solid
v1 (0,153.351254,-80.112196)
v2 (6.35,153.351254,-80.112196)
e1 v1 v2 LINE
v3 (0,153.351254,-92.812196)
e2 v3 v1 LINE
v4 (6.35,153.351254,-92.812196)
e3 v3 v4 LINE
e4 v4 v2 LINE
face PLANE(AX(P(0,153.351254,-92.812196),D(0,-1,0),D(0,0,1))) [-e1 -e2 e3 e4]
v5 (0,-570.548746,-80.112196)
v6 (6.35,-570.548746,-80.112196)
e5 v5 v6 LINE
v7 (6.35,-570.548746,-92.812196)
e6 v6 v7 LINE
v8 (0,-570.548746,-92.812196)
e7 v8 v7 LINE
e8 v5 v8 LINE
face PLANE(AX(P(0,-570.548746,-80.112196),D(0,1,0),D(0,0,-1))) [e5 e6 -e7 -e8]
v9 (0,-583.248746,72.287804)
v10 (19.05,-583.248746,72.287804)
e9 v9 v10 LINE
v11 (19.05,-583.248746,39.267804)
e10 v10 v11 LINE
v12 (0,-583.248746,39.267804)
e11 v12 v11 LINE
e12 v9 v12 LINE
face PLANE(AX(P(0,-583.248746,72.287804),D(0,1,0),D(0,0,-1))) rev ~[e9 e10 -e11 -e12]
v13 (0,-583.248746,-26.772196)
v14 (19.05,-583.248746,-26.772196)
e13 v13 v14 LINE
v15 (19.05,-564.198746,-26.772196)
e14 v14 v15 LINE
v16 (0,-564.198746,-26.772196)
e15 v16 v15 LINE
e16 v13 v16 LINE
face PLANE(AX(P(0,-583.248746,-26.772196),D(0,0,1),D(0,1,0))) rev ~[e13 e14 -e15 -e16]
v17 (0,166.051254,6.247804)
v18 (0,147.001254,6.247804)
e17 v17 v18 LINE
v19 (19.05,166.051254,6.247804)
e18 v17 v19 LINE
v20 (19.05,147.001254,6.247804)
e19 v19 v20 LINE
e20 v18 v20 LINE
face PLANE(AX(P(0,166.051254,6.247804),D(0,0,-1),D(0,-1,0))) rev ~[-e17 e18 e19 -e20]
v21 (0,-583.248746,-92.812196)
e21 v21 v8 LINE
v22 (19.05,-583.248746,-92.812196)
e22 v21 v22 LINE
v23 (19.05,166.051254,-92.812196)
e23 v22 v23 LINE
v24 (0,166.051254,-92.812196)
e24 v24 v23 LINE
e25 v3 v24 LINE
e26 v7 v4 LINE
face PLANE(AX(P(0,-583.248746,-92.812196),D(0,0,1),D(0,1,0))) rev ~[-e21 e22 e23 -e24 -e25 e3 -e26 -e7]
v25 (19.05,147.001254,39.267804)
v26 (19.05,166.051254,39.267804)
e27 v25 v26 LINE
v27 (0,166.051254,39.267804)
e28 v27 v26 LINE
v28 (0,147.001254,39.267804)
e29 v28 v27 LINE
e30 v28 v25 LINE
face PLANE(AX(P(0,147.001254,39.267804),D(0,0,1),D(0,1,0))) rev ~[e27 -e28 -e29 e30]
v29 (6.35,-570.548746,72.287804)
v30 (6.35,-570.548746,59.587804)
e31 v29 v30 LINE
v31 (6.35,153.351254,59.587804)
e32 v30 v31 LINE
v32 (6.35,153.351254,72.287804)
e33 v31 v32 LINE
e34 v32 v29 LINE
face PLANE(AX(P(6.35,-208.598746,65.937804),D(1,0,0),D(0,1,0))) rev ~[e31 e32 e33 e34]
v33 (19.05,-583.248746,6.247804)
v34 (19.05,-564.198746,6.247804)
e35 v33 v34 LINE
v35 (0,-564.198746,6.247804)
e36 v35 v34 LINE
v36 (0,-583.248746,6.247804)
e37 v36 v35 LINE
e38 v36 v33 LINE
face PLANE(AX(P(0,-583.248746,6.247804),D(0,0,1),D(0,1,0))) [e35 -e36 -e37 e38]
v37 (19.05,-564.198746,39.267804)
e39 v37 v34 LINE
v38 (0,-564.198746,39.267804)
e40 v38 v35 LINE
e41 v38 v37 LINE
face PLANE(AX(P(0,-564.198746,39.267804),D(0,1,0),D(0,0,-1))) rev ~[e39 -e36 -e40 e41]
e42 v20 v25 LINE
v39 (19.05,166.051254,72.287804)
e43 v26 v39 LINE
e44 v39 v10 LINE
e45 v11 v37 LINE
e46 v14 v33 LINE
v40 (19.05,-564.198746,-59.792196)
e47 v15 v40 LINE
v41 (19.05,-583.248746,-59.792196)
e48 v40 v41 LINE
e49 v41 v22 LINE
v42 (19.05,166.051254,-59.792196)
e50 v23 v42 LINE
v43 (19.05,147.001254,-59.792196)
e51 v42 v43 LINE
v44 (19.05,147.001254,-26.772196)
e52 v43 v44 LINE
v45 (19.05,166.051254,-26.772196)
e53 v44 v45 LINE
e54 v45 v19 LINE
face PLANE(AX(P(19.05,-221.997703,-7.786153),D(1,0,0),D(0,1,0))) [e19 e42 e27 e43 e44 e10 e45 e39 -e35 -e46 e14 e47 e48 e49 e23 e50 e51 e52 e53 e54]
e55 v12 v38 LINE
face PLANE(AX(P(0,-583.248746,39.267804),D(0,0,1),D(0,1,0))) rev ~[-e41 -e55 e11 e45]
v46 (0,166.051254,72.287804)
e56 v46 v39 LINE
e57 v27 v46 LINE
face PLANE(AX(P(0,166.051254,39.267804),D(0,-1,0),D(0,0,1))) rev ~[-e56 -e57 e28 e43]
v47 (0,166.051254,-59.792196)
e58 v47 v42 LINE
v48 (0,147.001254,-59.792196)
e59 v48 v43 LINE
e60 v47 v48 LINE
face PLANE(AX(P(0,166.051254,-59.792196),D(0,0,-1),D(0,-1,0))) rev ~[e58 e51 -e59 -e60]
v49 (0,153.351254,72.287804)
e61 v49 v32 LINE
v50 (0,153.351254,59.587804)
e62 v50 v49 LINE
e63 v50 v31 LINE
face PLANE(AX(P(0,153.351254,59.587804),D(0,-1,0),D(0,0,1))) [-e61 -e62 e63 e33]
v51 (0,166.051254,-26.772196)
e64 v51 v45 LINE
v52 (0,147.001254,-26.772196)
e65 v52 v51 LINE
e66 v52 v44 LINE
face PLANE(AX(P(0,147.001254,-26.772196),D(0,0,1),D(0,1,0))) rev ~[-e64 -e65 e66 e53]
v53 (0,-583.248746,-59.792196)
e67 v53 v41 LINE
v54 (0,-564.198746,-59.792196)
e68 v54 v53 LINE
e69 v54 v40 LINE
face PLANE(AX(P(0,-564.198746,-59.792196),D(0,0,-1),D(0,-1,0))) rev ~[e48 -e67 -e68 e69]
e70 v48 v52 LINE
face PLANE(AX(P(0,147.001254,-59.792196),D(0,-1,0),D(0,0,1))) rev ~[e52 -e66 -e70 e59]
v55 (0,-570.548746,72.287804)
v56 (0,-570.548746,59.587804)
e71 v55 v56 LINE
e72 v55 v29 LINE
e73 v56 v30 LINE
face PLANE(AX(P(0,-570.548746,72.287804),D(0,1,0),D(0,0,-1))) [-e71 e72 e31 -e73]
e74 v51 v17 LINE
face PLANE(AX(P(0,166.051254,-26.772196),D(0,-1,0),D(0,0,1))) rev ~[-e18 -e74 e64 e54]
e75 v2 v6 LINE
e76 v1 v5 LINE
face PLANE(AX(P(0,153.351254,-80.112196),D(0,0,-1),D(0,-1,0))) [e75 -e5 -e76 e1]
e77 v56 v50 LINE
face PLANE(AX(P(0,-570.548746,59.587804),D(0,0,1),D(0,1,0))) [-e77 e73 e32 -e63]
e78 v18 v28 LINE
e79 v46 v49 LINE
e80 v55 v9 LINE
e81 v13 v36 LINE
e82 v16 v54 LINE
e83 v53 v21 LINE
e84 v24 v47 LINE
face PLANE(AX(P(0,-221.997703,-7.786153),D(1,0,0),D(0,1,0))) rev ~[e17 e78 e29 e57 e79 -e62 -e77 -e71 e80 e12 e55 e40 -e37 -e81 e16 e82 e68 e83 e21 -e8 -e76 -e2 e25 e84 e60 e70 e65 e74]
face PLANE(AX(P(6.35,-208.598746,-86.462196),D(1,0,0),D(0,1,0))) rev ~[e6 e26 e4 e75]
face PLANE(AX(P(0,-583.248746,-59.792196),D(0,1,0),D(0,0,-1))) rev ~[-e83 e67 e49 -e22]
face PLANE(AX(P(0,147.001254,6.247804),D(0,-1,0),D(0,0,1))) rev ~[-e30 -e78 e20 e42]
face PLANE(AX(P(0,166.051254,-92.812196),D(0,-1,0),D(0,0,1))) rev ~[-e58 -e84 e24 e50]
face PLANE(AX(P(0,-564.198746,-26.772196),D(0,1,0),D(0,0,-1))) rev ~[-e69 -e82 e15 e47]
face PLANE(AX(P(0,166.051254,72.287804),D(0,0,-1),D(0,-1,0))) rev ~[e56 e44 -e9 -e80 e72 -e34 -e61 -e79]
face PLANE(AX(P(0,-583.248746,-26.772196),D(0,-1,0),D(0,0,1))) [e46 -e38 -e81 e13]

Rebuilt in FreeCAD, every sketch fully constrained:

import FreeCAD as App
import Part
import Sketcher
Q = App.Units.Quantity


def add_polygon(sketch, points):
    """Adds a closed chain of lines whose ends are joined by coincident constraints."""
    first, n = sketch.GeometryCount, len(points)
    for a, b in zip(points, points[1:] + points[:1]):
        sketch.addGeometry(Part.LineSegment(App.Vector(*a, 0), App.Vector(*b, 0)), False)
    for i in range(n):
        sketch.addConstraint(Sketcher.Constraint("Coincident", first + i, 2, first + (i + 1) % n, 1))

doc = App.newDocument("Part")
body = doc.addObject("PartDesign::Body", "Body")

# Sketch on YZ plane
sketch1 = body.newObject("Sketcher::SketchObject", "Sketch")
sketch1.AttachmentSupport = (doc.getObject("YZ_Plane"), [""])
sketch1.MapMode = "FlatFace"
add_polygon(sketch1, [(-583, 72), (-583, 39), (-564, 39), (-564, 6), (-583, 6), (-583, -27), (-564, -27), (-564, -60), (-583, -60), (-583, -93), (166, -93), (166, -60), (147, -60), (147, -27), (166, -27), (166, 6), (147, 6), (147, 39), (166, 39), (166, 72)])  # lines 0-19
sketch1.addConstraint(Sketcher.Constraint("Vertical", 0))
sketch1.addConstraint(Sketcher.Constraint("Horizontal", 1))
sketch1.addConstraint(Sketcher.Constraint("Vertical", 2))
sketch1.addConstraint(Sketcher.Constraint("Horizontal", 3))
sketch1.addConstraint(Sketcher.Constraint("Vertical", 4))
sketch1.addConstraint(Sketcher.Constraint("Horizontal", 5))
sketch1.addConstraint(Sketcher.Constraint("Vertical", 6))
sketch1.addConstraint(Sketcher.Constraint("Horizontal", 7))
sketch1.addConstraint(Sketcher.Constraint("Vertical", 8))
sketch1.addConstraint(Sketcher.Constraint("Horizontal", 9))
sketch1.addConstraint(Sketcher.Constraint("Vertical", 10))
sketch1.addConstraint(Sketcher.Constraint("Horizontal", 11))
sketch1.addConstraint(Sketcher.Constraint("Vertical", 12))
sketch1.addConstraint(Sketcher.Constraint("Horizontal", 13))
sketch1.addConstraint(Sketcher.Constraint("Vertical", 14))
sketch1.addConstraint(Sketcher.Constraint("Horizontal", 15))
sketch1.addConstraint(Sketcher.Constraint("Vertical", 16))
sketch1.addConstraint(Sketcher.Constraint("Horizontal", 17))
sketch1.addConstraint(Sketcher.Constraint("Vertical", 18))
sketch1.addConstraint(Sketcher.Constraint("Horizontal", 19))
sketch1.addConstraint(Sketcher.Constraint("Horizontal", 7, 2, 10, 2))
sketch1.addConstraint(Sketcher.Constraint("Horizontal", 5, 2, 12, 2))
sketch1.addConstraint(Sketcher.Constraint("Horizontal", 3, 2, 14, 2))
sketch1.addConstraint(Sketcher.Constraint("Horizontal", 1, 2, 16, 2))
sketch1.addConstraint(Sketcher.Constraint("Vertical", 0, 2, 3, 2))
sketch1.addConstraint(Sketcher.Constraint("Vertical", 2, 2, 5, 2))
sketch1.addConstraint(Sketcher.Constraint("Vertical", 4, 2, 7, 2))
sketch1.addConstraint(Sketcher.Constraint("Vertical", 10, 2, 13, 2))
sketch1.addConstraint(Sketcher.Constraint("Vertical", 12, 2, 15, 2))
sketch1.addConstraint(Sketcher.Constraint("Vertical", 14, 2, 17, 2))
sketch1.addConstraint(Sketcher.Constraint("Equal", 7, 11))
sketch1.addConstraint(Sketcher.Constraint("Equal", 0, 2))
sketch1.addConstraint(Sketcher.Constraint("Equal", 2, 4))
sketch1.addConstraint(Sketcher.Constraint("Equal", 4, 6))
sketch1.addConstraint(Sketcher.Constraint("Equal", 6, 8))
sketch1.addConstraint(Sketcher.Constraint("DistanceX", 9, 1, 9, 2, Q("29.5 in")))
sketch1.addConstraint(Sketcher.Constraint("DistanceY", 0, 2, 0, 1, Q("1.3 in")))
sketch1.addConstraint(Sketcher.Constraint("DistanceX", 6, 2, 11, 2, Q("28 in")))
sketch1.addConstraint(Sketcher.Constraint("DistanceX", 0, 2, -1, 1, Q("583.248746 mm")))
sketch1.addConstraint(Sketcher.Constraint("DistanceY", -1, 1, 0, 2, Q("39.267804 mm")))
pad1 = body.newObject("PartDesign::Pad", "Pad")
pad1.Profile = sketch1
pad1.Length = Q("0.75 in")

# Sketch on YZ plane
sketch2 = body.newObject("Sketcher::SketchObject", "Sketch001")
sketch2.AttachmentSupport = (doc.getObject("YZ_Plane"), [""])
sketch2.MapMode = "FlatFace"
add_polygon(sketch2, [(-571, 72), (-571, 60), (153, 60), (153, 72)])  # lines 0-3
sketch2.addConstraint(Sketcher.Constraint("Vertical", 0))
sketch2.addConstraint(Sketcher.Constraint("Horizontal", 1))
sketch2.addConstraint(Sketcher.Constraint("Vertical", 2))
sketch2.addConstraint(Sketcher.Constraint("Horizontal", 3))
sketch2.addConstraint(Sketcher.Constraint("DistanceX", 1, 1, 1, 2, Q("28.5 in")))
sketch2.addConstraint(Sketcher.Constraint("DistanceY", 0, 2, 0, 1, Q("0.5 in")))
sketch2.addConstraint(Sketcher.Constraint("DistanceX", 0, 2, -1, 1, Q("570.548746 mm")))
sketch2.addConstraint(Sketcher.Constraint("DistanceY", -1, 1, 0, 2, Q("59.587804 mm")))
pocket1 = body.newObject("PartDesign::Pocket", "Pocket")
pocket1.Profile = sketch2
pocket1.Length = Q("0.25 in")
pocket1.Reversed = True

# Sketch on YZ plane
sketch3 = body.newObject("Sketcher::SketchObject", "Sketch002")
sketch3.AttachmentSupport = (doc.getObject("YZ_Plane"), [""])
sketch3.MapMode = "FlatFace"
add_polygon(sketch3, [(-571, -80), (-571, -93), (153, -93), (153, -80)])  # lines 0-3
sketch3.addConstraint(Sketcher.Constraint("Vertical", 0))
sketch3.addConstraint(Sketcher.Constraint("Horizontal", 1))
sketch3.addConstraint(Sketcher.Constraint("Vertical", 2))
sketch3.addConstraint(Sketcher.Constraint("Horizontal", 3))
sketch3.addConstraint(Sketcher.Constraint("DistanceX", 1, 1, 1, 2, Q("28.5 in")))
sketch3.addConstraint(Sketcher.Constraint("DistanceY", 0, 2, 0, 1, Q("0.5 in")))
sketch3.addConstraint(Sketcher.Constraint("DistanceX", 0, 2, -1, 1, Q("570.548746 mm")))
sketch3.addConstraint(Sketcher.Constraint("DistanceY", 0, 2, -1, 1, Q("92.812196 mm")))
pocket2 = body.newObject("PartDesign::Pocket", "Pocket001")
pocket2.Profile = sketch3
pocket2.Length = Q("0.25 in")
pocket2.Reversed = True

doc.recompute()
